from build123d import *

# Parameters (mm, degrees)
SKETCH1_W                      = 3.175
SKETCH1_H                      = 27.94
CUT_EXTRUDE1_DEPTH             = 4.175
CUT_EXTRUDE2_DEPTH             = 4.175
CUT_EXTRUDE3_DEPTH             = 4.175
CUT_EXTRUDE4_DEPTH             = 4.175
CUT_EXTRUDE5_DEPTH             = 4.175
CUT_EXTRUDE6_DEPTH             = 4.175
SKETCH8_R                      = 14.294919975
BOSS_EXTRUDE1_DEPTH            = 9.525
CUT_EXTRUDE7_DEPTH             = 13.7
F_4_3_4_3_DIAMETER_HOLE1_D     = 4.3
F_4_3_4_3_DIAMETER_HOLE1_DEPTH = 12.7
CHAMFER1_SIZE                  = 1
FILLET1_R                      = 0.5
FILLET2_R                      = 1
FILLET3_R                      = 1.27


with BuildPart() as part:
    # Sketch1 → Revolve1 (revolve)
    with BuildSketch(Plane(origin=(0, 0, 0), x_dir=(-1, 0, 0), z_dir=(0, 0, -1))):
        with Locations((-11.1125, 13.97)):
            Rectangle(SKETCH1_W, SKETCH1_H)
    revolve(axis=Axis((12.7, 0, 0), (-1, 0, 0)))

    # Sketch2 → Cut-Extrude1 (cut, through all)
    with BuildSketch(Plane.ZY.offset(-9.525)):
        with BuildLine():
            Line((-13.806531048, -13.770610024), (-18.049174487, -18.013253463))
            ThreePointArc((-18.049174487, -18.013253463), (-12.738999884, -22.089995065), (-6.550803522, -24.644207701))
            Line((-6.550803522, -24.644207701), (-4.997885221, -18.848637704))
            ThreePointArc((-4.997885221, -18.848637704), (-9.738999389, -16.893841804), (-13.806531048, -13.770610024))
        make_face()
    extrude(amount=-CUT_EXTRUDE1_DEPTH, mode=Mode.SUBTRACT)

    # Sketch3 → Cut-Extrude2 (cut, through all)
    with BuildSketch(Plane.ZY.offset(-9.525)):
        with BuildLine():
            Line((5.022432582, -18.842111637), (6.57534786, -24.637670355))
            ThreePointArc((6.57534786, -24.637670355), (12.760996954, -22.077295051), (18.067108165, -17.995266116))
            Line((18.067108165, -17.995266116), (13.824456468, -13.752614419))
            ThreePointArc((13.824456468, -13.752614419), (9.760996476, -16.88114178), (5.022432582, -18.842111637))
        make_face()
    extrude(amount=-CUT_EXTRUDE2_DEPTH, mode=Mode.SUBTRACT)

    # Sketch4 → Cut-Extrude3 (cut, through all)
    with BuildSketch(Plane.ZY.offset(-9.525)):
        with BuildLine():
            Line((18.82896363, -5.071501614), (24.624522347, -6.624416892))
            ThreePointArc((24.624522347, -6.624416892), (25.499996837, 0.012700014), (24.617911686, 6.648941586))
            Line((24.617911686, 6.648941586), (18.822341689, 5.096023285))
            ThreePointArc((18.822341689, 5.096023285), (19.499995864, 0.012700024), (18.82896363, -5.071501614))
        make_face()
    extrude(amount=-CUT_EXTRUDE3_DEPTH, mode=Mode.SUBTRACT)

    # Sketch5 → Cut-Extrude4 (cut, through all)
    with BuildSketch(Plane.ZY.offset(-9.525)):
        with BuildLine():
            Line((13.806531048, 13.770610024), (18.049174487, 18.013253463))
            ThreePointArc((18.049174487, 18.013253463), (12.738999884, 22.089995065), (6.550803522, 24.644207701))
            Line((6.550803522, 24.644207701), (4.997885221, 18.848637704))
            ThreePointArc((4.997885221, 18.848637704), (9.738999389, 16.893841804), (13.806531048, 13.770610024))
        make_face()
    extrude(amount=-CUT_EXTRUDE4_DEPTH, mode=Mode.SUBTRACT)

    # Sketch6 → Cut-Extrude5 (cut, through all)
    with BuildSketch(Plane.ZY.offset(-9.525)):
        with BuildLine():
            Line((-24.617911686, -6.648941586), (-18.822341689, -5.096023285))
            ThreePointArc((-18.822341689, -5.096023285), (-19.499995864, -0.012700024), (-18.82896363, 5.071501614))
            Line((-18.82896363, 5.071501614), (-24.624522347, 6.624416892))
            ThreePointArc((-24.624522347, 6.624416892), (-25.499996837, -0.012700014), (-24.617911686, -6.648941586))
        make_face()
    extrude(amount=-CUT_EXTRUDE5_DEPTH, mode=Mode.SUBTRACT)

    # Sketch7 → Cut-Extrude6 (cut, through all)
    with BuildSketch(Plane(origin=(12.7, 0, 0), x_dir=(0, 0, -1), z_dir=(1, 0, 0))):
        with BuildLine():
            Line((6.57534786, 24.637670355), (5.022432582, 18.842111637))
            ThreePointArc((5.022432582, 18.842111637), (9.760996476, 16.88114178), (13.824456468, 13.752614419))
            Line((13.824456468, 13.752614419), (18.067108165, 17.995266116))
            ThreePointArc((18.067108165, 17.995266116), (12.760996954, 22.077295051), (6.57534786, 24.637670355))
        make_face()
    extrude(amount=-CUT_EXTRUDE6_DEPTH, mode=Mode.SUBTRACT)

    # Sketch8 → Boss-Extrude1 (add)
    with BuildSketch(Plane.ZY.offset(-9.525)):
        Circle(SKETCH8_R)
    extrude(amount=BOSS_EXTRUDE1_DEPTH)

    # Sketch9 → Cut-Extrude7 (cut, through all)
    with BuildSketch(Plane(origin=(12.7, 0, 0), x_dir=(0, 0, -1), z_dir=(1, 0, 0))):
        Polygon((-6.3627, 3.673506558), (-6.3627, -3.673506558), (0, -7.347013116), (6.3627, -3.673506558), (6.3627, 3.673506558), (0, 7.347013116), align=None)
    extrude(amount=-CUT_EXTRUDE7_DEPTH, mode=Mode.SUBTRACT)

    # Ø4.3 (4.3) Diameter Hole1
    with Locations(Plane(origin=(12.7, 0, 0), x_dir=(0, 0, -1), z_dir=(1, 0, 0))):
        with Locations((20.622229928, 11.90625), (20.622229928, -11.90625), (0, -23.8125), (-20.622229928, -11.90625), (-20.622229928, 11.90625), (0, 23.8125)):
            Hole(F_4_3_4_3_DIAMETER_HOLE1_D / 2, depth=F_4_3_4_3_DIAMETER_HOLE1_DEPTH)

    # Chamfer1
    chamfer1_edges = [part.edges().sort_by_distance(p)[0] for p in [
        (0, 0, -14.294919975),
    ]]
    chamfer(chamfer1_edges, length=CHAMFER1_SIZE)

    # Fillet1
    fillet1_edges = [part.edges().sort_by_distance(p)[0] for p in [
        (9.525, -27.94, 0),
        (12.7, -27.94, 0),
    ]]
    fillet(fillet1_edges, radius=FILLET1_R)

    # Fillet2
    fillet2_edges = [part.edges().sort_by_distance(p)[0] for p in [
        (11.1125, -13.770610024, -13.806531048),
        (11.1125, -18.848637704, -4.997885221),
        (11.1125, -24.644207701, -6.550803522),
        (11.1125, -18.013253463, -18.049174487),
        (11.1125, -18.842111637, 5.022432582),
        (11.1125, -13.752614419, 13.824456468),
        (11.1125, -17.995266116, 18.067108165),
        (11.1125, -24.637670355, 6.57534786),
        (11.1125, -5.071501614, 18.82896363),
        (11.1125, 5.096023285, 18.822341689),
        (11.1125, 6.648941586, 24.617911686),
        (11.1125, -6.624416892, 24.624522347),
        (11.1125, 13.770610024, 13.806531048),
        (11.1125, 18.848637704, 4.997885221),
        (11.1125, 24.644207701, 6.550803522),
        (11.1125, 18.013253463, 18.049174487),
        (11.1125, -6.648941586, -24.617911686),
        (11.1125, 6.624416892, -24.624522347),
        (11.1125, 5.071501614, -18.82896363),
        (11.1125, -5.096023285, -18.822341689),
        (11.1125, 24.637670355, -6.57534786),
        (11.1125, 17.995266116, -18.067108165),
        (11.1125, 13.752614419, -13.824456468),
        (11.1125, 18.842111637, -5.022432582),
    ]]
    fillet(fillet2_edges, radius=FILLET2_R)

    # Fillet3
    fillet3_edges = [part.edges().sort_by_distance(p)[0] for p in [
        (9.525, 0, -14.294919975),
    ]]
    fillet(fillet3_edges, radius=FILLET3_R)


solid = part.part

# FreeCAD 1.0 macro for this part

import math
import FreeCAD as App
import Part
import Sketcher

V = App.Vector
Q = App.Units.Quantity


def edges_at(feature, points):
    """Names of the edges that pass closest to the given points."""
    edges = feature.Shape.Edges
    near = lambda p: min(range(len(edges)), key=lambda i: edges[i].distToShape(Part.Vertex(*p))[0])
    return sorted({f"Edge{near(p) + 1}" for p in points})

doc = App.newDocument("Part")
body = doc.addObject("PartDesign::Body", "Body")

sketch1 = body.newObject("Sketcher::SketchObject", "Sketch")
sketch1.AttachmentSupport = (doc.getObject("XY_Plane"), [""])
sketch1.MapMode = "FlatFace"
sketch1.addGeometry(Part.LineSegment(V(12.7, 27.94, 0), V(12.7, 0, 0)), False)
sketch1.addGeometry(Part.LineSegment(V(12.7, 0, 0), V(9.525, 0, 0)), False)
sketch1.addGeometry(Part.LineSegment(V(9.525, 0, 0), V(9.525, 27.94, 0)), False)
sketch1.addGeometry(Part.LineSegment(V(9.525, 27.94, 0), V(12.7, 27.94, 0)), False)
sketch1.addConstraint(Sketcher.Constraint("Coincident", 0, 2, 1, 1))
sketch1.addConstraint(Sketcher.Constraint("Coincident", 1, 2, 2, 1))
sketch1.addConstraint(Sketcher.Constraint("Coincident", 2, 2, 3, 1))
sketch1.addConstraint(Sketcher.Constraint("Coincident", 3, 2, 0, 1))
sketch1.addConstraint(Sketcher.Constraint("Vertical", 0))
sketch1.addConstraint(Sketcher.Constraint("Horizontal", 1))
sketch1.addConstraint(Sketcher.Constraint("Vertical", 2))
sketch1.addConstraint(Sketcher.Constraint("Horizontal", 3))
sketch1.addConstraint(Sketcher.Constraint("PointOnObject", 0, 2, -1))
sketch1.addConstraint(Sketcher.Constraint("DistanceY", 0, 2, 0, 1, 27.94))
sketch1.addConstraint(Sketcher.Constraint("DistanceX", -1, 1, 0, 2, 12.7))
sketch1.addConstraint(Sketcher.Constraint("DistanceX", 1, 2, 1, 1, 3.175))
revolution = body.newObject("PartDesign::Revolution", "Revolution")
revolution.Profile = sketch1
revolution.ReferenceAxis = (sketch1, ["H_Axis"])
revolution.Angle = 360

sketch2 = body.newObject("Sketcher::SketchObject", "Sketch001")
sketch2.AttachmentSupport = (doc.getObject("YZ_Plane"), [""])
sketch2.MapMode = "FlatFace"
sketch2.AttachmentOffset = App.Placement(V(0, 0, 9.525), App.Rotation())
sketch2.addGeometry(Part.LineSegment(V(-13.77061, -13.806531, 0), V(-18.013253, -18.049174, 0)), False)
sketch2.addGeometry(Part.ArcOfCircle(Part.Circle(V(0, 0, 0), V(0, 0, 1), 25.5), math.radians(-165.114142), math.radians(-134.942929)), False)
sketch2.addGeometry(Part.LineSegment(V(-24.644208, -6.550804, 0), V(-18.848638, -4.997885, 0)), False)
sketch2.addGeometry(Part.ArcOfCircle(Part.Circle(V(0, 0, 0), V(0, 0, 1), 19.5), math.radians(-165.149263), math.radians(-134.925369)), False)
sketch2.addConstraint(Sketcher.Constraint("Coincident", 0, 2, 1, 2))
sketch2.addConstraint(Sketcher.Constraint("Coincident", 1, 1, 2, 1))
sketch2.addConstraint(Sketcher.Constraint("Coincident", 2, 2, 3, 1))
sketch2.addConstraint(Sketcher.Constraint("Coincident", 3, 2, 0, 1))
sketch2.addConstraint(Sketcher.Constraint("Coincident", 1, 3, -1, 1))
sketch2.addConstraint(Sketcher.Constraint("Coincident", 3, 3, -1, 1))
sketch2.addConstraint(Sketcher.Constraint("Radius", 1, 25.5))
sketch2.addConstraint(Sketcher.Constraint("Radius", 3, 19.5))
sketch2.addConstraint(Sketcher.Constraint("Angle", 0, Q("-135 deg")))
sketch2.addConstraint(Sketcher.Constraint("Angle", 2, Q("15 deg")))
sketch2.addConstraint(Sketcher.Constraint("DistanceX", 3, 2, -1, 1, 13.77061))
sketch2.addConstraint(Sketcher.Constraint("DistanceY", 0, 2, 1, 1, 11.498371))
pocket1 = body.newObject("PartDesign::Pocket", "Pocket")
pocket1.Profile = sketch2
pocket1.Type = "ThroughAll"
pocket1.Reversed = True

sketch3 = body.newObject("Sketcher::SketchObject", "Sketch002")
sketch3.AttachmentSupport = (doc.getObject("YZ_Plane"), [""])
sketch3.MapMode = "FlatFace"
sketch3.AttachmentOffset = App.Placement(V(0, 0, 9.525), App.Rotation())
sketch3.addGeometry(Part.LineSegment(V(-18.842112, 5.022433, 0), V(-24.63767, 6.575348, 0)), False)
sketch3.addGeometry(Part.ArcOfCircle(Part.Circle(V(0, 0, 0), V(0, 0, 1), 25.5), math.radians(134.885858), math.radians(165.057071)), False)
sketch3.addGeometry(Part.LineSegment(V(-17.995266, 18.067108, 0), V(-13.752614, 13.824456, 0)), False)
sketch3.addGeometry(Part.ArcOfCircle(Part.Circle(V(0, 0, 0), V(0, 0, 1), 19.5), math.radians(134.850737), math.radians(165.074631)), False)
sketch3.addConstraint(Sketcher.Constraint("Coincident", 0, 2, 1, 2))
sketch3.addConstraint(Sketcher.Constraint("Coincident", 1, 1, 2, 1))
sketch3.addConstraint(Sketcher.Constraint("Coincident", 2, 2, 3, 1))
sketch3.addConstraint(Sketcher.Constraint("Coincident", 3, 2, 0, 1))
sketch3.addConstraint(Sketcher.Constraint("Coincident", 1, 3, -1, 1))
sketch3.addConstraint(Sketcher.Constraint("Coincident", 3, 3, -1, 1))
sketch3.addConstraint(Sketcher.Constraint("Radius", 1, 25.5))
sketch3.addConstraint(Sketcher.Constraint("Radius", 3, 19.5))
sketch3.addConstraint(Sketcher.Constraint("Angle", 0, Q("165 deg")))
sketch3.addConstraint(Sketcher.Constraint("Angle", 2, Q("-45 deg")))
sketch3.addConstraint(Sketcher.Constraint("DistanceX", 0, 2, -1, 1, 24.63767))
sketch3.addConstraint(Sketcher.Constraint("DistanceY", -1, 1, 1, 1, 18.067108))
pocket2 = body.newObject("PartDesign::Pocket", "Pocket001")
pocket2.Profile = sketch3
pocket2.Type = "ThroughAll"
pocket2.Reversed = True

sketch4 = body.newObject("Sketcher::SketchObject", "Sketch003")
sketch4.AttachmentSupport = (doc.getObject("YZ_Plane"), [""])
sketch4.MapMode = "FlatFace"
sketch4.AttachmentOffset = App.Placement(V(0, 0, 9.525), App.Rotation())
sketch4.addGeometry(Part.LineSegment(V(-5.071502, 18.828964, 0), V(-6.624417, 24.624522, 0)), False)
sketch4.addGeometry(Part.ArcOfCircle(Part.Circle(V(0, 0, 0), V(0, 0, 1), 25.5), math.radians(74.885858), math.radians(105.057071)), False)
sketch4.addGeometry(Part.LineSegment(V(6.648942, 24.617912, 0), V(5.096023, 18.822342, 0)), False)
sketch4.addGeometry(Part.ArcOfCircle(Part.Circle(V(0, 0, 0), V(0, 0, 1), 19.5), math.radians(74.850737), math.radians(105.074631)), False)
sketch4.addConstraint(Sketcher.Constraint("Coincident", 0, 2, 1, 2))
sketch4.addConstraint(Sketcher.Constraint("Coincident", 1, 1, 2, 1))
sketch4.addConstraint(Sketcher.Constraint("Coincident", 2, 2, 3, 1))
sketch4.addConstraint(Sketcher.Constraint("Coincident", 3, 2, 0, 1))
sketch4.addConstraint(Sketcher.Constraint("Coincident", 1, 3, -1, 1))
sketch4.addConstraint(Sketcher.Constraint("Coincident", 3, 3, -1, 1))
sketch4.addConstraint(Sketcher.Constraint("Radius", 1, 25.5))
sketch4.addConstraint(Sketcher.Constraint("Radius", 3, 19.5))
sketch4.addConstraint(Sketcher.Constraint("Angle", 0, Q("105 deg")))
sketch4.addConstraint(Sketcher.Constraint("Angle", 2, Q("-105 deg")))
sketch4.addConstraint(Sketcher.Constraint("DistanceX", 3, 2, -1, 1, 5.071502))
sketch4.addConstraint(Sketcher.Constraint("DistanceX", -1, 1, 1, 1, 6.648942))
pocket3 = body.newObject("PartDesign::Pocket", "Pocket002")
pocket3.Profile = sketch4
pocket3.Type = "ThroughAll"
pocket3.Reversed = True

sketch5 = body.newObject("Sketcher::SketchObject", "Sketch004")
sketch5.AttachmentSupport = (doc.getObject("YZ_Plane"), [""])
sketch5.MapMode = "FlatFace"
sketch5.AttachmentOffset = App.Placement(V(0, 0, 9.525), App.Rotation())
sketch5.addGeometry(Part.LineSegment(V(13.77061, 13.806531, 0), V(18.013253, 18.049174, 0)), False)
sketch5.addGeometry(Part.ArcOfCircle(Part.Circle(V(0, 0, 0), V(0, 0, 1), 25.5), math.radians(14.885858), math.radians(45.057071)), False)
sketch5.addGeometry(Part.LineSegment(V(24.644208, 6.550804, 0), V(18.848638, 4.997885, 0)), False)
sketch5.addGeometry(Part.ArcOfCircle(Part.Circle(V(0, 0, 0), V(0, 0, 1), 19.5), math.radians(14.850737), math.radians(45.074631)), False)
sketch5.addConstraint(Sketcher.Constraint("Coincident", 0, 2, 1, 2))
sketch5.addConstraint(Sketcher.Constraint("Coincident", 1, 1, 2, 1))
sketch5.addConstraint(Sketcher.Constraint("Coincident", 2, 2, 3, 1))
sketch5.addConstraint(Sketcher.Constraint("Coincident", 3, 2, 0, 1))
sketch5.addConstraint(Sketcher.Constraint("Coincident", 1, 3, -1, 1))
sketch5.addConstraint(Sketcher.Constraint("Coincident", 3, 3, -1, 1))
sketch5.addConstraint(Sketcher.Constraint("Radius", 1, 25.5))
sketch5.addConstraint(Sketcher.Constraint("Radius", 3, 19.5))
sketch5.addConstraint(Sketcher.Constraint("Angle", 0, Q("45 deg")))
sketch5.addConstraint(Sketcher.Constraint("Angle", 2, Q("-165 deg")))
sketch5.addConstraint(Sketcher.Constraint("DistanceX", -1, 1, 3, 2, 13.77061))
sketch5.addConstraint(Sketcher.Constraint("DistanceY", 1, 1, 0, 2, 11.498371))
pocket4 = body.newObject("PartDesign::Pocket", "Pocket003")
pocket4.Profile = sketch5
pocket4.Type = "ThroughAll"
pocket4.Reversed = True

sketch6 = body.newObject("Sketcher::SketchObject", "Sketch005")
sketch6.AttachmentSupport = (doc.getObject("YZ_Plane"), [""])
sketch6.MapMode = "FlatFace"
sketch6.AttachmentOffset = App.Placement(V(0, 0, 9.525), App.Rotation())
sketch6.addGeometry(Part.LineSegment(V(-6.648942, -24.617912, 0), V(-5.096023, -18.822342, 0)), False)
sketch6.addGeometry(Part.ArcOfCircle(Part.Circle(V(0, 0, 0), V(0, 0, 1), 19.5), math.radians(-105.149263), math.radians(-74.925369)), False)
sketch6.addGeometry(Part.LineSegment(V(5.071502, -18.828964, 0), V(6.624417, -24.624522, 0)), False)
sketch6.addGeometry(Part.ArcOfCircle(Part.Circle(V(0, 0, 0), V(0, 0, 1), 25.5), math.radians(-105.114142), math.radians(-74.942929)), False)
sketch6.addConstraint(Sketcher.Constraint("Coincident", 0, 2, 1, 1))
sketch6.addConstraint(Sketcher.Constraint("Coincident", 1, 2, 2, 1))
sketch6.addConstraint(Sketcher.Constraint("Coincident", 2, 2, 3, 2))
sketch6.addConstraint(Sketcher.Constraint("Coincident", 3, 1, 0, 1))
sketch6.addConstraint(Sketcher.Constraint("Coincident", 1, 3, -1, 1))
sketch6.addConstraint(Sketcher.Constraint("Coincident", 3, 3, -1, 1))
sketch6.addConstraint(Sketcher.Constraint("Radius", 1, 19.5))
sketch6.addConstraint(Sketcher.Constraint("Radius", 3, 25.5))
sketch6.addConstraint(Sketcher.Constraint("Angle", 0, Q("75 deg")))
sketch6.addConstraint(Sketcher.Constraint("Angle", 2, Q("-75 deg")))
sketch6.addConstraint(Sketcher.Constraint("DistanceX", -1, 1, 1, 2, 5.071502))
sketch6.addConstraint(Sketcher.Constraint("DistanceY", 0, 2, -1, 1, 18.822342))
pocket5 = body.newObject("PartDesign::Pocket", "Pocket004")
pocket5.Profile = sketch6
pocket5.Type = "ThroughAll"
pocket5.Reversed = True

sketch7 = body.newObject("Sketcher::SketchObject", "Sketch006")
sketch7.AttachmentSupport = (doc.getObject("YZ_Plane"), [""])
sketch7.MapMode = "FlatFace"
sketch7.AttachmentOffset = App.Placement(V(0, 0, 12.7), App.Rotation())
sketch7.addGeometry(Part.LineSegment(V(24.63767, -6.575348, 0), V(18.842112, -5.022433, 0)), False)
sketch7.addGeometry(Part.ArcOfCircle(Part.Circle(V(0, 0, 0), V(0, 0, 1), 19.5), math.radians(-45.149263), math.radians(-14.925369)), False)
sketch7.addGeometry(Part.LineSegment(V(13.752614, -13.824456, 0), V(17.995266, -18.067108, 0)), False)
sketch7.addGeometry(Part.ArcOfCircle(Part.Circle(V(0, 0, 0), V(0, 0, 1), 25.5), math.radians(-45.114142), math.radians(-14.942929)), False)
sketch7.addConstraint(Sketcher.Constraint("Coincident", 0, 2, 1, 2))
sketch7.addConstraint(Sketcher.Constraint("Coincident", 1, 1, 2, 1))
sketch7.addConstraint(Sketcher.Constraint("Coincident", 2, 2, 3, 1))
sketch7.addConstraint(Sketcher.Constraint("Coincident", 3, 2, 0, 1))
sketch7.addConstraint(Sketcher.Constraint("Coincident", 1, 3, -1, 1))
sketch7.addConstraint(Sketcher.Constraint("Coincident", 3, 3, -1, 1))
sketch7.addConstraint(Sketcher.Constraint("Radius", 1, 19.5))
sketch7.addConstraint(Sketcher.Constraint("Radius", 3, 25.5))
sketch7.addConstraint(Sketcher.Constraint("Angle", 0, Q("165 deg")))
sketch7.addConstraint(Sketcher.Constraint("Angle", 2, Q("-45 deg")))
sketch7.addConstraint(Sketcher.Constraint("DistanceX", -1, 1, 0, 2, 18.842112))
sketch7.addConstraint(Sketcher.Constraint("DistanceY", 2, 2, -1, 1, 18.067108))
pocket6 = body.newObject("PartDesign::Pocket", "Pocket005")
pocket6.Profile = sketch7
pocket6.Type = "ThroughAll"

sketch8 = body.newObject("Sketcher::SketchObject", "Sketch007")
sketch8.AttachmentSupport = (doc.getObject("YZ_Plane"), [""])
sketch8.MapMode = "FlatFace"
sketch8.AttachmentOffset = App.Placement(V(0, 0, 9.525), App.Rotation())
sketch8.addGeometry(Part.Circle(V(0, 0, 0), V(0, 0, 1), 14.29492), False)
sketch8.addConstraint(Sketcher.Constraint("Coincident", 0, 3, -1, 1))
sketch8.addConstraint(Sketcher.Constraint("Diameter", 0, 28.58984))
pad1 = body.newObject("PartDesign::Pad", "Pad")
pad1.Profile = sketch8
pad1.Length = 9.525
pad1.Reversed = True

sketch9 = body.newObject("Sketcher::SketchObject", "Sketch008")
sketch9.AttachmentSupport = (doc.getObject("YZ_Plane"), [""])
sketch9.MapMode = "FlatFace"
sketch9.AttachmentOffset = App.Placement(V(0, 0, 12.7), App.Rotation())
sketch9.addGeometry(Part.LineSegment(V(3.673507, 6.3627, 0), V(-3.673507, 6.3627, 0)), False)
sketch9.addGeometry(Part.LineSegment(V(-3.673507, 6.3627, 0), V(-7.347013, 0, 0)), False)
sketch9.addGeometry(Part.LineSegment(V(-7.347013, 0, 0), V(-3.673507, -6.3627, 0)), False)
sketch9.addGeometry(Part.LineSegment(V(-3.673507, -6.3627, 0), V(3.673507, -6.3627, 0)), False)
sketch9.addGeometry(Part.LineSegment(V(3.673507, -6.3627, 0), V(7.347013, 0, 0)), False)
sketch9.addGeometry(Part.LineSegment(V(7.347013, 0, 0), V(3.673507, 6.3627, 0)), False)
sketch9.addConstraint(Sketcher.Constraint("Coincident", 0, 2, 1, 1))
sketch9.addConstraint(Sketcher.Constraint("Coincident", 1, 2, 2, 1))
sketch9.addConstraint(Sketcher.Constraint("Coincident", 2, 2, 3, 1))
sketch9.addConstraint(Sketcher.Constraint("Coincident", 3, 2, 4, 1))
sketch9.addConstraint(Sketcher.Constraint("Coincident", 4, 2, 5, 1))
sketch9.addConstraint(Sketcher.Constraint("Coincident", 5, 2, 0, 1))
sketch9.addConstraint(Sketcher.Constraint("Horizontal", 0))
sketch9.addConstraint(Sketcher.Constraint("Horizontal", 3))
sketch9.addConstraint(Sketcher.Constraint("Symmetric", 0, 2, 3, 2, -1, 1))
sketch9.addConstraint(Sketcher.Constraint("Symmetric", 1, 2, 4, 2, -1, 1))
sketch9.addConstraint(Sketcher.Constraint("PointOnObject", 1, 2, -1))
sketch9.addConstraint(Sketcher.Constraint("Parallel", 2, 5))
sketch9.addConstraint(Sketcher.Constraint("Vertical", 0, 2, 2, 2))
sketch9.addConstraint(Sketcher.Constraint("Angle", 1, Q("-120 deg")))
sketch9.addConstraint(Sketcher.Constraint("DistanceY", -1, 1, 0, 2, 6.3627))
sketch9.addConstraint(Sketcher.Constraint("DistanceX", 0, 2, 0, 1, 7.347013))
pocket7 = body.newObject("PartDesign::Pocket", "Pocket006")
pocket7.Profile = sketch9
pocket7.Type = "ThroughAll"

sketch10 = body.newObject("Sketcher::SketchObject", "Sketch009")
sketch10.AttachmentSupport = (doc.getObject("YZ_Plane"), [""])
sketch10.MapMode = "FlatFace"
sketch10.AttachmentOffset = App.Placement(V(0, 0, 12.7), App.Rotation())
sketch10.addGeometry(Part.Circle(V(11.90625, -20.62223, 0), V(0, 0, 1), 2.15), False)
sketch10.addGeometry(Part.Circle(V(-11.90625, -20.62223, 0), V(0, 0, 1), 2.15), False)
sketch10.addGeometry(Part.Circle(V(-23.8125, 0, 0), V(0, 0, 1), 2.15), False)
sketch10.addGeometry(Part.Circle(V(-11.90625, 20.62223, 0), V(0, 0, 1), 2.15), False)
sketch10.addGeometry(Part.Circle(V(11.90625, 20.62223, 0), V(0, 0, 1), 2.15), False)
sketch10.addGeometry(Part.Circle(V(23.8125, 0, 0), V(0, 0, 1), 2.15), False)
sketch10.addConstraint(Sketcher.Constraint("Equal", 0, 1))
sketch10.addConstraint(Sketcher.Constraint("Equal", 1, 2))
sketch10.addConstraint(Sketcher.Constraint("Equal", 2, 3))
sketch10.addConstraint(Sketcher.Constraint("Equal", 3, 4))
sketch10.addConstraint(Sketcher.Constraint("Equal", 4, 5))
sketch10.addConstraint(Sketcher.Constraint("Symmetric", 0, 3, 3, 3, -1, 1))
sketch10.addConstraint(Sketcher.Constraint("Symmetric", 1, 3, 4, 3, -1, 1))
sketch10.addConstraint(Sketcher.Constraint("Symmetric", 2, 3, 5, 3, -1, 1))
sketch10.addConstraint(Sketcher.Constraint("Symmetric", 0, 3, 1, 3, -2))
sketch10.addConstraint(Sketcher.Constraint("PointOnObject", 2, 3, -1))
sketch10.addConstraint(Sketcher.Constraint("Diameter", 0, 4.3))
sketch10.addConstraint(Sketcher.Constraint("DistanceX", 2, 3, 5, 3, 47.625))
sketch10.addConstraint(Sketcher.Constraint("DistanceX", 1, 3, 0, 3, 23.8125))
sketch10.addConstraint(Sketcher.Constraint("DistanceY", 0, 3, -1, 1, 20.62223))
doc.recompute()
hole = body.newObject("PartDesign::Hole", "Hole")
hole.Profile = sketch10
hole.ThreadType = "None"
hole.Diameter = 4.3
hole.DepthType = "Dimension"
hole.Depth = 12.7
hole.DrillPoint = "Flat"
doc.recompute()

chamfer = body.newObject("PartDesign::Chamfer", "Chamfer")
chamfer.Base = (hole, edges_at(hole, [(0, 0, -14.295)]))
chamfer.Size = 1
doc.recompute()

fillet = body.newObject("PartDesign::Fillet", "Fillet")
fillet.Base = (chamfer, edges_at(chamfer, [(9.525, -27.94, 0), (12.7, -27.94, 0)]))
fillet.Radius = 0.5
doc.recompute()

fillet2 = body.newObject("PartDesign::Fillet", "Fillet001")
fillet2.Base = (fillet, edges_at(fillet, [
    (11.113, -13.771, -13.807),
    (11.113, -18.849, -4.998),
    (11.113, -24.644, -6.551),
    (11.113, -18.013, -18.049),
    (11.113, -18.842, 5.022),
    (11.113, -13.753, 13.824),
    (11.113, -17.995, 18.067),
    (11.113, -24.638, 6.575),
    (11.113, -5.072, 18.829),
    (11.113, 5.096, 18.822),
    (11.113, 6.649, 24.618),
    (11.113, -6.624, 24.625),
    (11.113, 13.771, 13.807),
    (11.113, 18.849, 4.998),
    (11.113, 24.644, 6.551),
    (11.113, 18.013, 18.049),
    (11.113, -6.649, -24.618),
    (11.113, 6.624, -24.625),
    (11.113, 5.072, -18.829),
    (11.113, -5.096, -18.822),
    (11.113, 24.638, -6.575),
    (11.113, 17.995, -18.067),
    (11.113, 13.753, -13.824),
    (11.113, 18.842, -5.022),
]))
fillet2.Radius = 1
doc.recompute()

fillet3 = body.newObject("PartDesign::Fillet", "Fillet002")
fillet3.Base = (fillet2, edges_at(fillet2, [(9.525, 0, -14.295)]))
fillet3.Radius = 1.27

doc.recompute()
